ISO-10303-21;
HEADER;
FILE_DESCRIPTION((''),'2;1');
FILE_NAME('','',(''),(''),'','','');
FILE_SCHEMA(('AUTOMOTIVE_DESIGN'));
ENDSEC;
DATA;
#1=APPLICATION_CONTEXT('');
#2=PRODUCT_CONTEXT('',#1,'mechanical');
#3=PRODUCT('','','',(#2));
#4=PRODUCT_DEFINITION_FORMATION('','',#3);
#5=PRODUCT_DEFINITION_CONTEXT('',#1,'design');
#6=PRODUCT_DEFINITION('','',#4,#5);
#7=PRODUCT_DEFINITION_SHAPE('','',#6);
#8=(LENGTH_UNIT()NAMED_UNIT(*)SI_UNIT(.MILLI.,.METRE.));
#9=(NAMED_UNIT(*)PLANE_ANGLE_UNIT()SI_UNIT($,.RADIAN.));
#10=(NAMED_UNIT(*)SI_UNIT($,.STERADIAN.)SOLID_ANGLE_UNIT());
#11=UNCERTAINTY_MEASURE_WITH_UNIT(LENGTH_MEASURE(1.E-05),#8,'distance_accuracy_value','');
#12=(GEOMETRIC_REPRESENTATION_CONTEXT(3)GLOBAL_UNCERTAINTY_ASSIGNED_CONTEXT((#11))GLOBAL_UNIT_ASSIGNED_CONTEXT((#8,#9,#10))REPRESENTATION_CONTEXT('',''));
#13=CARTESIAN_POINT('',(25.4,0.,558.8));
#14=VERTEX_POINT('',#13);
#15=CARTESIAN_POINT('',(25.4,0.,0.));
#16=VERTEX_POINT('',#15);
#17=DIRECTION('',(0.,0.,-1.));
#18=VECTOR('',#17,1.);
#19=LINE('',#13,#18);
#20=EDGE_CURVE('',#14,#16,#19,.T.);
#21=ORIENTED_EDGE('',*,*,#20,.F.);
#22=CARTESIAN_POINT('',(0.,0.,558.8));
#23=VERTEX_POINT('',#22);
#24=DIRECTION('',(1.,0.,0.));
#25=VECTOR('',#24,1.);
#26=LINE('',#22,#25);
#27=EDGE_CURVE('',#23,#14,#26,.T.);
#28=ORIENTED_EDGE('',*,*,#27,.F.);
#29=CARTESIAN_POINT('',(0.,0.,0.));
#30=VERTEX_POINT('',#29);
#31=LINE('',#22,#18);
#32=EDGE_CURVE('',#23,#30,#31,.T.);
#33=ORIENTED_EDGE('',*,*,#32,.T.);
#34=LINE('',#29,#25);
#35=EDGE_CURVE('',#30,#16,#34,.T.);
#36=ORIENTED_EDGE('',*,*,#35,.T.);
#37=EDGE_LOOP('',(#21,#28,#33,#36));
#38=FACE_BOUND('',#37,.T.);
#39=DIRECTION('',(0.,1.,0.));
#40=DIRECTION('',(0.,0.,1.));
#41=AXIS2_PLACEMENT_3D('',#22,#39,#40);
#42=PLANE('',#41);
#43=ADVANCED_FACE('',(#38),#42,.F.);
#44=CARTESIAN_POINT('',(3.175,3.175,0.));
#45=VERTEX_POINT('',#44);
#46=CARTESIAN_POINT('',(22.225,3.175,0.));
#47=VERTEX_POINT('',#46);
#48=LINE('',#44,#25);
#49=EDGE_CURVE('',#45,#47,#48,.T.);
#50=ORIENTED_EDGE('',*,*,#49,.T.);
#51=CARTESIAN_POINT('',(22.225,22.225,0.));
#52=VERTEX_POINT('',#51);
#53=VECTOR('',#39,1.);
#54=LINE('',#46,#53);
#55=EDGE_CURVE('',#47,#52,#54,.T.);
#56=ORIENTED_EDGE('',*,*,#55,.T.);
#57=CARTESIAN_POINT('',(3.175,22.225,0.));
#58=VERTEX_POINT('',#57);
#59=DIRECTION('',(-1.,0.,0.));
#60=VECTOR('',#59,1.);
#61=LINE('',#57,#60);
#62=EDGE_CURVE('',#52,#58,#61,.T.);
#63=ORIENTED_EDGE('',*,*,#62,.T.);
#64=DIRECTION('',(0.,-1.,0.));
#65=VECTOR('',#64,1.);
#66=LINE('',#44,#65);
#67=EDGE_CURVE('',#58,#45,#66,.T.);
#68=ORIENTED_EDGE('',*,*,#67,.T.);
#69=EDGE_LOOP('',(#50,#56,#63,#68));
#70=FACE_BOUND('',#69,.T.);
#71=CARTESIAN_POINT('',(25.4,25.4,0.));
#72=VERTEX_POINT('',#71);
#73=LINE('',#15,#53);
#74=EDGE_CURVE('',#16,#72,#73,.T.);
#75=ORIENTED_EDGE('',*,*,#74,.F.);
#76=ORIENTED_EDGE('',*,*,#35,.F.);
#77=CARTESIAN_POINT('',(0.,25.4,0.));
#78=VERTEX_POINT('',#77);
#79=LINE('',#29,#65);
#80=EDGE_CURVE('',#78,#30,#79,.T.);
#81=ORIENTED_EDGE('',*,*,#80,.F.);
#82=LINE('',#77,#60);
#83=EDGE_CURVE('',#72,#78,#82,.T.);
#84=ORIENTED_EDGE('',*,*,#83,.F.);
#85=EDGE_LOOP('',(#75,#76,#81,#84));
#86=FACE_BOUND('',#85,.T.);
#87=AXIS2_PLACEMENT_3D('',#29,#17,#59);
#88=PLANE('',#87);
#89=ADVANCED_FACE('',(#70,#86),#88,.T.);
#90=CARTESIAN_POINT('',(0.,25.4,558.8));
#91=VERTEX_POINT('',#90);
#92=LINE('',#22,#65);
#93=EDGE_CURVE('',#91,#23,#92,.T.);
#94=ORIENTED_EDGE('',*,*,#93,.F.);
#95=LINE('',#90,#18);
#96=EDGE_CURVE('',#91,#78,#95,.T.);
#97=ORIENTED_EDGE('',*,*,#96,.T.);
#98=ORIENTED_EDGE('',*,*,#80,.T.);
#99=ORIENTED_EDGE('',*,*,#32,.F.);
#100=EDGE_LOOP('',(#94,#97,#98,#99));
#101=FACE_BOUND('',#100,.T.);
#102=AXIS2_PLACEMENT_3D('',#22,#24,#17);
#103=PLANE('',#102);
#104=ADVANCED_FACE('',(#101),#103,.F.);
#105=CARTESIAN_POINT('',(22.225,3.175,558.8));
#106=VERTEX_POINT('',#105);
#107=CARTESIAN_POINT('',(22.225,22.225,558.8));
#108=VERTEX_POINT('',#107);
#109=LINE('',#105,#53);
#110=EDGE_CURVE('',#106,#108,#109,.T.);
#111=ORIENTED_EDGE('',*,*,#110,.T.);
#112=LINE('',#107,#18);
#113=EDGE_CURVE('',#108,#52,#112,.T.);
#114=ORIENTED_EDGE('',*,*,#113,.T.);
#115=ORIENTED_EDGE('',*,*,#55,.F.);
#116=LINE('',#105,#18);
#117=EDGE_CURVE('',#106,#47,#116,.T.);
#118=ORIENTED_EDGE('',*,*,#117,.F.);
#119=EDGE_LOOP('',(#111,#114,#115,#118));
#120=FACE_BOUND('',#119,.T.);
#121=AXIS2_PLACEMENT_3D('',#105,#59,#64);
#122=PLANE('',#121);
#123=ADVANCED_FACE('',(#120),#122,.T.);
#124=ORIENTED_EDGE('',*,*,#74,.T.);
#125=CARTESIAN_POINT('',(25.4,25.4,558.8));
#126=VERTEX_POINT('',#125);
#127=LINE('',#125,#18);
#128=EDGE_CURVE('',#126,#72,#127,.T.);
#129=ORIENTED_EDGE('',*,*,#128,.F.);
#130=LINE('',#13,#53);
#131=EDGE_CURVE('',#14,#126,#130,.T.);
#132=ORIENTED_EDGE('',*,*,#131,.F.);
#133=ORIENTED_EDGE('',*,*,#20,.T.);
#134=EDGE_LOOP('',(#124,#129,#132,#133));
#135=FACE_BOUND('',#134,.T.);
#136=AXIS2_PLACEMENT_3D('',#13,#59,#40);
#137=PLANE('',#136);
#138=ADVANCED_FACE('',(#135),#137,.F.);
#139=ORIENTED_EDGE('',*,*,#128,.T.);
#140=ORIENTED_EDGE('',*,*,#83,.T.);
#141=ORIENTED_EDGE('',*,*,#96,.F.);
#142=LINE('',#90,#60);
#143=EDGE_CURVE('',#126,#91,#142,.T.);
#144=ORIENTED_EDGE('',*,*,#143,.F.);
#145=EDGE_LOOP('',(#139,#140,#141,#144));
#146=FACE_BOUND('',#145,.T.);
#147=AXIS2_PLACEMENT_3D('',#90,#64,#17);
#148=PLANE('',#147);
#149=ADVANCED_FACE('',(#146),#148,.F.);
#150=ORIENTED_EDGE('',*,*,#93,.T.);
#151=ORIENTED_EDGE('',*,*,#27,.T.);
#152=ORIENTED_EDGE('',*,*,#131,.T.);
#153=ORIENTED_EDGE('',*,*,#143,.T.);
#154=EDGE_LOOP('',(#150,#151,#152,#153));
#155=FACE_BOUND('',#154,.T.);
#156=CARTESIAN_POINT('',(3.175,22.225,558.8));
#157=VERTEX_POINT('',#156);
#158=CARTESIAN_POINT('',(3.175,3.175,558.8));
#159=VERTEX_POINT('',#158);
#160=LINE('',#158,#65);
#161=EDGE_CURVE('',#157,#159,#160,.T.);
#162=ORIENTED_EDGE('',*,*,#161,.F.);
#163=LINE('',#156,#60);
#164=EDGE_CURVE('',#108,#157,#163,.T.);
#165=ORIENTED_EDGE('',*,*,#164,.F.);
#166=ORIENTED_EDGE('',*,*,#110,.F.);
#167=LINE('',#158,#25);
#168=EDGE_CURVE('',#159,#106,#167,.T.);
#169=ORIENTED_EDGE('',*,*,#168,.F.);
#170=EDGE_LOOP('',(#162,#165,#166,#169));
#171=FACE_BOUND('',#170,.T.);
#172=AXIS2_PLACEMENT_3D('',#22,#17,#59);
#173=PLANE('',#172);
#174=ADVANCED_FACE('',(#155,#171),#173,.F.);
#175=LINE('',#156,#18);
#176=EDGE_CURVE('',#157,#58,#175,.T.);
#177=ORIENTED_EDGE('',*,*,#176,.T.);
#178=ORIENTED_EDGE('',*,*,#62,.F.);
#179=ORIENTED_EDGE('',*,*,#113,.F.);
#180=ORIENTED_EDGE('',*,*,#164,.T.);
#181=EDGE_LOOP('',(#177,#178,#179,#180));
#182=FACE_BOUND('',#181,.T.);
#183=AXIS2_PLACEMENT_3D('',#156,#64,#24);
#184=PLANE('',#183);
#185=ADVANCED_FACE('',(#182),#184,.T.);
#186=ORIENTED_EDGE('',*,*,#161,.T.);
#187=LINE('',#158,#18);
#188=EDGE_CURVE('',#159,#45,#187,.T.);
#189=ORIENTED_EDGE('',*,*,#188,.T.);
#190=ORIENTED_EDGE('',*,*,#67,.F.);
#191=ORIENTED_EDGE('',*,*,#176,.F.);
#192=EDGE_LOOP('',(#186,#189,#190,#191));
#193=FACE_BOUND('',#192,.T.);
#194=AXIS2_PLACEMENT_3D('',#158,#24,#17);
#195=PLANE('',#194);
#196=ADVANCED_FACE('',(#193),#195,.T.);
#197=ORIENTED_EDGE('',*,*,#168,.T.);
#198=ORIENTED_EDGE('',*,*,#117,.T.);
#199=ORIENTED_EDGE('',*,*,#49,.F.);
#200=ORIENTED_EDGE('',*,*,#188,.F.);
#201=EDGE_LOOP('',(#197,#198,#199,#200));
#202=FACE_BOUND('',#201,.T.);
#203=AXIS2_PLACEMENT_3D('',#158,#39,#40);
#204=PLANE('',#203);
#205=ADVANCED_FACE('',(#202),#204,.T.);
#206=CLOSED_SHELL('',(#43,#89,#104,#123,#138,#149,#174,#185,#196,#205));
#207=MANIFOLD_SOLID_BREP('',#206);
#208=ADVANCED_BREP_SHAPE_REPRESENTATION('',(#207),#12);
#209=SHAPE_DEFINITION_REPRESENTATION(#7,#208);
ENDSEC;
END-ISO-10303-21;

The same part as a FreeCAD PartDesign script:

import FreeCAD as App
import Part
import Sketcher
from FreeCAD import Vector
Q = App.Units.Quantity


def add_polygon(sketch, points):
    """Adds a closed chain of lines whose ends are joined by coincident constraints."""
    first, n = sketch.GeometryCount, len(points)
    for a, b in zip(points, points[1:] + points[:1]):
        sketch.addGeometry(Part.LineSegment(App.Vector(*a, 0), App.Vector(*b, 0)), False)
    for i in range(n):
        sketch.addConstraint(Sketcher.Constraint("Coincident", first + i, 2, first + (i + 1) % n, 1))

doc = App.newDocument("Part")
params = doc.addObject("Spreadsheet::Sheet", "Params")
for row, (alias, value) in enumerate([
    ("sketch1_width", "1 in"),
    ("sketch1_width2", "0.75 in"),
    ("pad1_length", "22 in"),
], start=1):
    params.set(f"A{row}", alias)
    params.set(f"B{row}", "=" + value)
    params.setAlias(f"B{row}", alias)

body = doc.addObject("PartDesign::Body", "Body")

sketch1 = body.newObject("Sketcher::SketchObject", "Sketch")
sketch1.AttachmentSupport = (doc.getObject("XY_Plane"), [""])
sketch1.MapMode = "FlatFace"
add_polygon(sketch1, [(0, 25), (0, 0), (25, 0), (25, 25)])
add_polygon(sketch1, [(22, 3), (3, 3), (3, 22), (22, 22)])
sketch1.addConstraint(Sketcher.Constraint("Vertical", 0))
sketch1.addConstraint(Sketcher.Constraint("Horizontal", 1))
sketch1.addConstraint(Sketcher.Constraint("Vertical", 2))
sketch1.addConstraint(Sketcher.Constraint("Horizontal", 3))
sketch1.addConstraint(Sketcher.Constraint("Horizontal", 4))
sketch1.addConstraint(Sketcher.Constraint("Vertical", 5))
sketch1.addConstraint(Sketcher.Constraint("Horizontal", 6))
sketch1.addConstraint(Sketcher.Constraint("Vertical", 7))
sketch1.addConstraint(Sketcher.Constraint("Coincident", 0, 2, -1, 1))
sketch1.addConstraint(Sketcher.Constraint("Equal", 3, 0))
sketch1.addConstraint(Sketcher.Constraint("Equal", 6, 5))
sketch1.addConstraint(Sketcher.Constraint("DistanceX", 1, 1, 1, 2, Q("1 in")))
sketch1.addConstraint(Sketcher.Constraint("DistanceX", 4, 2, 4, 1, Q("0.75 in")))
sketch1.addConstraint(Sketcher.Constraint("DistanceX", -1, 1, 4, 2, Q("0.125 in")))
sketch1.addConstraint(Sketcher.Constraint("DistanceY", -1, 1, 4, 2, Q("0.125 in")))
sketch1.setExpression("Constraints[19]", "Params.sketch1_width")
sketch1.setExpression("Constraints[20]", "Params.sketch1_width2")
pad1 = body.newObject("PartDesign::Pad", "Pad")
pad1.Profile = sketch1
pad1.setExpression("Length", "Params.pad1_length")

doc.recompute()
